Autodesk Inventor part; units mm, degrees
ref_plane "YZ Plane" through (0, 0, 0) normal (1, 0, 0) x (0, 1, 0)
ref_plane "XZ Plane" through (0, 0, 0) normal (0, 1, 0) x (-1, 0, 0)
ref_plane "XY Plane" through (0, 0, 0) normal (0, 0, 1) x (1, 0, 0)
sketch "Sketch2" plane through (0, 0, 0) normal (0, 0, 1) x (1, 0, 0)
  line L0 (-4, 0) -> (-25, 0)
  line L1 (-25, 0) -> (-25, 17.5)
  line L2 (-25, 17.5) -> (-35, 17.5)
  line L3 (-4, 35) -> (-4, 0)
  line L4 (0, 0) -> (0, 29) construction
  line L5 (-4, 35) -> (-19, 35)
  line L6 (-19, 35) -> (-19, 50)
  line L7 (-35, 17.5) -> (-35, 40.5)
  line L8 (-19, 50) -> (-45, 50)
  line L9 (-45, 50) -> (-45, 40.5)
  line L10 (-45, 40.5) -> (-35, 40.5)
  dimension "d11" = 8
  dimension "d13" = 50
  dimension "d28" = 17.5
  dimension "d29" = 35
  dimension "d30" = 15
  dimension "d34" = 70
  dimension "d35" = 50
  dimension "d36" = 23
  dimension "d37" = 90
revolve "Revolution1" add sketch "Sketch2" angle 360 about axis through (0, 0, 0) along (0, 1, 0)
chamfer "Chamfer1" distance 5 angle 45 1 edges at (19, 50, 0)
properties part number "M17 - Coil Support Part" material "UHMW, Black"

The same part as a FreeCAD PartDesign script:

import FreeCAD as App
import Part
import Sketcher

V = App.Vector


def edges_at(feature, points):
    """Names of the edges that pass closest to the given points."""
    edges = feature.Shape.Edges
    near = lambda p: min(range(len(edges)), key=lambda i: edges[i].distToShape(Part.Vertex(*p))[0])
    return sorted({f"Edge{near(p) + 1}" for p in points})


def add_polygon(sketch, points):
    """Adds a closed chain of lines whose ends are joined by coincident constraints."""
    first, n = sketch.GeometryCount, len(points)
    for a, b in zip(points, points[1:] + points[:1]):
        sketch.addGeometry(Part.LineSegment(App.Vector(*a, 0), App.Vector(*b, 0)), False)
    for i in range(n):
        sketch.addConstraint(Sketcher.Constraint("Coincident", first + i, 2, first + (i + 1) % n, 1))

doc = App.newDocument("Part")
body = doc.addObject("PartDesign::Body", "Body")

# Sketch on XY plane
sketch1 = body.newObject("Sketcher::SketchObject", "Sketch")
sketch1.AttachmentSupport = (doc.getObject("XY_Plane"), [""])
sketch1.MapMode = "FlatFace"
add_polygon(sketch1, [(-25, 0), (-4, 0), (-4, 35), (-19, 35), (-19, 50), (-45, 50), (-45, 40), (-35, 40), (-35, 18), (-25, 18)])  # lines 0-9
sketch1.addConstraint(Sketcher.Constraint("Horizontal", 0))
sketch1.addConstraint(Sketcher.Constraint("Vertical", 1))
sketch1.addConstraint(Sketcher.Constraint("Horizontal", 2))
sketch1.addConstraint(Sketcher.Constraint("Vertical", 3))
sketch1.addConstraint(Sketcher.Constraint("Horizontal", 4))
sketch1.addConstraint(Sketcher.Constraint("Vertical", 5))
sketch1.addConstraint(Sketcher.Constraint("Horizontal", 6))
sketch1.addConstraint(Sketcher.Constraint("Vertical", 7))
sketch1.addConstraint(Sketcher.Constraint("Horizontal", 8))
sketch1.addConstraint(Sketcher.Constraint("Vertical", 9))
sketch1.addConstraint(Sketcher.Constraint("PointOnObject", 0, 2, -1))
sketch1.addConstraint(Sketcher.Constraint("Equal", 6, 8))
sketch1.addConstraint(Sketcher.Constraint("Equal", 2, 3))
sketch1.addConstraint(Sketcher.Constraint("DistanceX", 2, 2, 2, 1, 15.0))
sketch1.addConstraint(Sketcher.Constraint("DistanceY", 1, 1, 1, 2, 35.0))
sketch1.addConstraint(Sketcher.Constraint("DistanceY", 7, 2, 7, 1, 23.0))
sketch1.addConstraint(Sketcher.Constraint("DistanceY", 9, 2, 9, 1, 17.5))
sketch1.addConstraint(Sketcher.Constraint("DistanceX", 6, 2, -1, 1, 35.0))
sketch1.addConstraint(Sketcher.Constraint("DistanceX", 0, 1, 0, 2, 21.0))
sketch1.addConstraint(Sketcher.Constraint("DistanceX", 4, 2, 4, 1, 26.0))
revolution = body.newObject("PartDesign::Revolution", "Revolution")
revolution.Profile = sketch1
revolution.ReferenceAxis = (sketch1, ["V_Axis"])
revolution.Angle = 360
doc.recompute()

chamfer = body.newObject("PartDesign::Chamfer", "Chamfer")
chamfer.Base = (revolution, edges_at(revolution, [(19, 50, 0)]))
chamfer.Size = 5

doc.recompute()
